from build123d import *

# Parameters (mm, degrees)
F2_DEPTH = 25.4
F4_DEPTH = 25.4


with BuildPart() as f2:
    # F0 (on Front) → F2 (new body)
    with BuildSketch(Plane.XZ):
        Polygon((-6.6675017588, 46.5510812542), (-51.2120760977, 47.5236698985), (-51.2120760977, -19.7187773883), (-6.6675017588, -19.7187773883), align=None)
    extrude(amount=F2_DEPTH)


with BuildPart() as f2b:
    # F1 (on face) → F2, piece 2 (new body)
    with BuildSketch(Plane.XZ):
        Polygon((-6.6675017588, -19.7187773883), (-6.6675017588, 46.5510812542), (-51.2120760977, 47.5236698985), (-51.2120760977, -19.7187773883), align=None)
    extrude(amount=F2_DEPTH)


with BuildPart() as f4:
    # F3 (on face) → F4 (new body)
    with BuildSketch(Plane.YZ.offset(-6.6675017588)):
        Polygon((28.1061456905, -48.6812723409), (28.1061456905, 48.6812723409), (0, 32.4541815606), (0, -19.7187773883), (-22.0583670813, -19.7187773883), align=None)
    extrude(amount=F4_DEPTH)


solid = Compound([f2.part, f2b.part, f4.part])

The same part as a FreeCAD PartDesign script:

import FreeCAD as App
import Part
import Sketcher

V = App.Vector
Q = App.Units.Quantity

doc = App.newDocument("Part")
body = doc.addObject("PartDesign::Body", "Body")

# Sketch on XZ plane
sketch1 = body.newObject("Sketcher::SketchObject", "Sketch")
sketch1.AttachmentSupport = (doc.getObject("XZ_Plane"), [""])
sketch1.MapMode = "FlatFace"
sketch1.addGeometry([
    Part.LineSegment(V(-6.667502, 46.551081, 0), V(-51.212076, 47.52367, 0)),
    Part.LineSegment(V(-51.212076, 47.52367, 0), V(-51.212076, -19.718777, 0)),
    Part.LineSegment(V(-51.212076, -19.718777, 0), V(-6.667502, -19.718777, 0)),
    Part.LineSegment(V(-6.667502, -19.718777, 0), V(-6.667502, 46.551081, 0)),
], False)
sketch1.addConstraint([
    Sketcher.Constraint("Coincident", 0, 2, 1, 1),
    Sketcher.Constraint("Coincident", 1, 2, 2, 1),
    Sketcher.Constraint("Coincident", 2, 2, 3, 1),
    Sketcher.Constraint("Coincident", 3, 2, 0, 1),
    Sketcher.Constraint("Vertical", 1),
    Sketcher.Constraint("Horizontal", 2),
    Sketcher.Constraint("Vertical", 3),
    Sketcher.Constraint("DistanceX", 2, 2, -1, 1, Q("0.2625001 in")),
    Sketcher.Constraint("DistanceY", 3, 1, 3, 2, 66.269859),
    Sketcher.Constraint("Distance", 0, 44.555191),
    Sketcher.Constraint("DistanceX", 2, 1, 2, 2, 44.544574),
    Sketcher.Constraint("DistanceY", -1, 1, 0, 2, 47.52367),
])
pad1 = body.newObject("PartDesign::Pad", "Pad")
pad1.Profile = sketch1
pad1.Length = Q("1 in")
body2 = doc.addObject("PartDesign::Body", "Body001")

# Sketch on XZ plane
sketch2 = body2.newObject("Sketcher::SketchObject", "Sketch001")
sketch2.AttachmentSupport = (doc.getObject("XZ_Plane001"), [""])
sketch2.MapMode = "FlatFace"
sketch2.addGeometry([
    Part.LineSegment(V(-6.667502, -19.718777, 0), V(-6.667502, 46.551081, 0)),
    Part.LineSegment(V(-6.667502, 46.551081, 0), V(-51.212076, 47.52367, 0)),
    Part.LineSegment(V(-51.212076, 47.52367, 0), V(-51.212076, -19.718777, 0)),
    Part.LineSegment(V(-51.212076, -19.718777, 0), V(-6.667502, -19.718777, 0)),
], False)
sketch2.addConstraint([
    Sketcher.Constraint("Coincident", 0, 2, 1, 1),
    Sketcher.Constraint("Coincident", 1, 2, 2, 1),
    Sketcher.Constraint("Coincident", 2, 2, 3, 1),
    Sketcher.Constraint("Coincident", 3, 2, 0, 1),
    Sketcher.Constraint("Vertical", 0),
    Sketcher.Constraint("Vertical", 2),
    Sketcher.Constraint("Horizontal", 3),
    Sketcher.Constraint("DistanceX", 0, 2, -1, 1, Q("0.2625001 in")),
    Sketcher.Constraint("DistanceY", 0, 1, 0, 2, 66.269859),
    Sketcher.Constraint("Distance", 1, 44.555191),
    Sketcher.Constraint("DistanceX", 3, 1, 3, 2, 44.544574),
    Sketcher.Constraint("DistanceY", -1, 1, 0, 2, 46.551081),
])
pad2 = body2.newObject("PartDesign::Pad", "Pad001")
pad2.Profile = sketch2
pad2.Length = Q("1 in")
body3 = doc.addObject("PartDesign::Body", "Body002")

# Sketch on YZ plane
sketch3 = body3.newObject("Sketcher::SketchObject", "Sketch002")
sketch3.AttachmentSupport = (doc.getObject("YZ_Plane002"), [""])
sketch3.MapMode = "FlatFace"
sketch3.AttachmentOffset = App.Placement(V(0, 0, -0.2625001 * 25.4), App.Rotation())
sketch3.addGeometry([
    Part.LineSegment(V(28, -49, 0), V(28, 49, 0)),  # 0
    Part.LineSegment(V(28, 49, 0), V(0, 32, 0)),  # 1
    Part.LineSegment(V(0, 32, 0), V(0, -20, 0)),  # 2
    Part.LineSegment(V(0, -20, 0), V(-22, -20, 0)),  # 3
    Part.LineSegment(V(-22, -20, 0), V(28, -49, 0)),  # 4
], False)
sketch3.addConstraint([
    Sketcher.Constraint("Coincident", 0, 2, 1, 1),
    Sketcher.Constraint("Coincident", 1, 2, 2, 1),
    Sketcher.Constraint("Coincident", 2, 2, 3, 1),
    Sketcher.Constraint("Coincident", 3, 2, 4, 1),
    Sketcher.Constraint("Coincident", 4, 2, 0, 1),
    Sketcher.Constraint("Vertical", 0),
    Sketcher.Constraint("Vertical", 2),
    Sketcher.Constraint("Horizontal", 3),
    Sketcher.Constraint("PointOnObject", 1, 2, -2),
    Sketcher.Constraint("Angle", 1, Q("-150 deg")),
    Sketcher.Constraint("Angle", 4, Q("-30 deg")),
    Sketcher.Constraint("DistanceY", 2, 2, 2, 1, 52.172959),
    Sketcher.Constraint("Distance", 1, 32.454182),
    Sketcher.Constraint("Distance", 4, 57.92499),
    Sketcher.Constraint("DistanceY", -1, 1, 1, 2, 32.454182),
])
pad3 = body3.newObject("PartDesign::Pad", "Pad002")
pad3.Profile = sketch3
pad3.Length = Q("1 in")

doc.recompute()
